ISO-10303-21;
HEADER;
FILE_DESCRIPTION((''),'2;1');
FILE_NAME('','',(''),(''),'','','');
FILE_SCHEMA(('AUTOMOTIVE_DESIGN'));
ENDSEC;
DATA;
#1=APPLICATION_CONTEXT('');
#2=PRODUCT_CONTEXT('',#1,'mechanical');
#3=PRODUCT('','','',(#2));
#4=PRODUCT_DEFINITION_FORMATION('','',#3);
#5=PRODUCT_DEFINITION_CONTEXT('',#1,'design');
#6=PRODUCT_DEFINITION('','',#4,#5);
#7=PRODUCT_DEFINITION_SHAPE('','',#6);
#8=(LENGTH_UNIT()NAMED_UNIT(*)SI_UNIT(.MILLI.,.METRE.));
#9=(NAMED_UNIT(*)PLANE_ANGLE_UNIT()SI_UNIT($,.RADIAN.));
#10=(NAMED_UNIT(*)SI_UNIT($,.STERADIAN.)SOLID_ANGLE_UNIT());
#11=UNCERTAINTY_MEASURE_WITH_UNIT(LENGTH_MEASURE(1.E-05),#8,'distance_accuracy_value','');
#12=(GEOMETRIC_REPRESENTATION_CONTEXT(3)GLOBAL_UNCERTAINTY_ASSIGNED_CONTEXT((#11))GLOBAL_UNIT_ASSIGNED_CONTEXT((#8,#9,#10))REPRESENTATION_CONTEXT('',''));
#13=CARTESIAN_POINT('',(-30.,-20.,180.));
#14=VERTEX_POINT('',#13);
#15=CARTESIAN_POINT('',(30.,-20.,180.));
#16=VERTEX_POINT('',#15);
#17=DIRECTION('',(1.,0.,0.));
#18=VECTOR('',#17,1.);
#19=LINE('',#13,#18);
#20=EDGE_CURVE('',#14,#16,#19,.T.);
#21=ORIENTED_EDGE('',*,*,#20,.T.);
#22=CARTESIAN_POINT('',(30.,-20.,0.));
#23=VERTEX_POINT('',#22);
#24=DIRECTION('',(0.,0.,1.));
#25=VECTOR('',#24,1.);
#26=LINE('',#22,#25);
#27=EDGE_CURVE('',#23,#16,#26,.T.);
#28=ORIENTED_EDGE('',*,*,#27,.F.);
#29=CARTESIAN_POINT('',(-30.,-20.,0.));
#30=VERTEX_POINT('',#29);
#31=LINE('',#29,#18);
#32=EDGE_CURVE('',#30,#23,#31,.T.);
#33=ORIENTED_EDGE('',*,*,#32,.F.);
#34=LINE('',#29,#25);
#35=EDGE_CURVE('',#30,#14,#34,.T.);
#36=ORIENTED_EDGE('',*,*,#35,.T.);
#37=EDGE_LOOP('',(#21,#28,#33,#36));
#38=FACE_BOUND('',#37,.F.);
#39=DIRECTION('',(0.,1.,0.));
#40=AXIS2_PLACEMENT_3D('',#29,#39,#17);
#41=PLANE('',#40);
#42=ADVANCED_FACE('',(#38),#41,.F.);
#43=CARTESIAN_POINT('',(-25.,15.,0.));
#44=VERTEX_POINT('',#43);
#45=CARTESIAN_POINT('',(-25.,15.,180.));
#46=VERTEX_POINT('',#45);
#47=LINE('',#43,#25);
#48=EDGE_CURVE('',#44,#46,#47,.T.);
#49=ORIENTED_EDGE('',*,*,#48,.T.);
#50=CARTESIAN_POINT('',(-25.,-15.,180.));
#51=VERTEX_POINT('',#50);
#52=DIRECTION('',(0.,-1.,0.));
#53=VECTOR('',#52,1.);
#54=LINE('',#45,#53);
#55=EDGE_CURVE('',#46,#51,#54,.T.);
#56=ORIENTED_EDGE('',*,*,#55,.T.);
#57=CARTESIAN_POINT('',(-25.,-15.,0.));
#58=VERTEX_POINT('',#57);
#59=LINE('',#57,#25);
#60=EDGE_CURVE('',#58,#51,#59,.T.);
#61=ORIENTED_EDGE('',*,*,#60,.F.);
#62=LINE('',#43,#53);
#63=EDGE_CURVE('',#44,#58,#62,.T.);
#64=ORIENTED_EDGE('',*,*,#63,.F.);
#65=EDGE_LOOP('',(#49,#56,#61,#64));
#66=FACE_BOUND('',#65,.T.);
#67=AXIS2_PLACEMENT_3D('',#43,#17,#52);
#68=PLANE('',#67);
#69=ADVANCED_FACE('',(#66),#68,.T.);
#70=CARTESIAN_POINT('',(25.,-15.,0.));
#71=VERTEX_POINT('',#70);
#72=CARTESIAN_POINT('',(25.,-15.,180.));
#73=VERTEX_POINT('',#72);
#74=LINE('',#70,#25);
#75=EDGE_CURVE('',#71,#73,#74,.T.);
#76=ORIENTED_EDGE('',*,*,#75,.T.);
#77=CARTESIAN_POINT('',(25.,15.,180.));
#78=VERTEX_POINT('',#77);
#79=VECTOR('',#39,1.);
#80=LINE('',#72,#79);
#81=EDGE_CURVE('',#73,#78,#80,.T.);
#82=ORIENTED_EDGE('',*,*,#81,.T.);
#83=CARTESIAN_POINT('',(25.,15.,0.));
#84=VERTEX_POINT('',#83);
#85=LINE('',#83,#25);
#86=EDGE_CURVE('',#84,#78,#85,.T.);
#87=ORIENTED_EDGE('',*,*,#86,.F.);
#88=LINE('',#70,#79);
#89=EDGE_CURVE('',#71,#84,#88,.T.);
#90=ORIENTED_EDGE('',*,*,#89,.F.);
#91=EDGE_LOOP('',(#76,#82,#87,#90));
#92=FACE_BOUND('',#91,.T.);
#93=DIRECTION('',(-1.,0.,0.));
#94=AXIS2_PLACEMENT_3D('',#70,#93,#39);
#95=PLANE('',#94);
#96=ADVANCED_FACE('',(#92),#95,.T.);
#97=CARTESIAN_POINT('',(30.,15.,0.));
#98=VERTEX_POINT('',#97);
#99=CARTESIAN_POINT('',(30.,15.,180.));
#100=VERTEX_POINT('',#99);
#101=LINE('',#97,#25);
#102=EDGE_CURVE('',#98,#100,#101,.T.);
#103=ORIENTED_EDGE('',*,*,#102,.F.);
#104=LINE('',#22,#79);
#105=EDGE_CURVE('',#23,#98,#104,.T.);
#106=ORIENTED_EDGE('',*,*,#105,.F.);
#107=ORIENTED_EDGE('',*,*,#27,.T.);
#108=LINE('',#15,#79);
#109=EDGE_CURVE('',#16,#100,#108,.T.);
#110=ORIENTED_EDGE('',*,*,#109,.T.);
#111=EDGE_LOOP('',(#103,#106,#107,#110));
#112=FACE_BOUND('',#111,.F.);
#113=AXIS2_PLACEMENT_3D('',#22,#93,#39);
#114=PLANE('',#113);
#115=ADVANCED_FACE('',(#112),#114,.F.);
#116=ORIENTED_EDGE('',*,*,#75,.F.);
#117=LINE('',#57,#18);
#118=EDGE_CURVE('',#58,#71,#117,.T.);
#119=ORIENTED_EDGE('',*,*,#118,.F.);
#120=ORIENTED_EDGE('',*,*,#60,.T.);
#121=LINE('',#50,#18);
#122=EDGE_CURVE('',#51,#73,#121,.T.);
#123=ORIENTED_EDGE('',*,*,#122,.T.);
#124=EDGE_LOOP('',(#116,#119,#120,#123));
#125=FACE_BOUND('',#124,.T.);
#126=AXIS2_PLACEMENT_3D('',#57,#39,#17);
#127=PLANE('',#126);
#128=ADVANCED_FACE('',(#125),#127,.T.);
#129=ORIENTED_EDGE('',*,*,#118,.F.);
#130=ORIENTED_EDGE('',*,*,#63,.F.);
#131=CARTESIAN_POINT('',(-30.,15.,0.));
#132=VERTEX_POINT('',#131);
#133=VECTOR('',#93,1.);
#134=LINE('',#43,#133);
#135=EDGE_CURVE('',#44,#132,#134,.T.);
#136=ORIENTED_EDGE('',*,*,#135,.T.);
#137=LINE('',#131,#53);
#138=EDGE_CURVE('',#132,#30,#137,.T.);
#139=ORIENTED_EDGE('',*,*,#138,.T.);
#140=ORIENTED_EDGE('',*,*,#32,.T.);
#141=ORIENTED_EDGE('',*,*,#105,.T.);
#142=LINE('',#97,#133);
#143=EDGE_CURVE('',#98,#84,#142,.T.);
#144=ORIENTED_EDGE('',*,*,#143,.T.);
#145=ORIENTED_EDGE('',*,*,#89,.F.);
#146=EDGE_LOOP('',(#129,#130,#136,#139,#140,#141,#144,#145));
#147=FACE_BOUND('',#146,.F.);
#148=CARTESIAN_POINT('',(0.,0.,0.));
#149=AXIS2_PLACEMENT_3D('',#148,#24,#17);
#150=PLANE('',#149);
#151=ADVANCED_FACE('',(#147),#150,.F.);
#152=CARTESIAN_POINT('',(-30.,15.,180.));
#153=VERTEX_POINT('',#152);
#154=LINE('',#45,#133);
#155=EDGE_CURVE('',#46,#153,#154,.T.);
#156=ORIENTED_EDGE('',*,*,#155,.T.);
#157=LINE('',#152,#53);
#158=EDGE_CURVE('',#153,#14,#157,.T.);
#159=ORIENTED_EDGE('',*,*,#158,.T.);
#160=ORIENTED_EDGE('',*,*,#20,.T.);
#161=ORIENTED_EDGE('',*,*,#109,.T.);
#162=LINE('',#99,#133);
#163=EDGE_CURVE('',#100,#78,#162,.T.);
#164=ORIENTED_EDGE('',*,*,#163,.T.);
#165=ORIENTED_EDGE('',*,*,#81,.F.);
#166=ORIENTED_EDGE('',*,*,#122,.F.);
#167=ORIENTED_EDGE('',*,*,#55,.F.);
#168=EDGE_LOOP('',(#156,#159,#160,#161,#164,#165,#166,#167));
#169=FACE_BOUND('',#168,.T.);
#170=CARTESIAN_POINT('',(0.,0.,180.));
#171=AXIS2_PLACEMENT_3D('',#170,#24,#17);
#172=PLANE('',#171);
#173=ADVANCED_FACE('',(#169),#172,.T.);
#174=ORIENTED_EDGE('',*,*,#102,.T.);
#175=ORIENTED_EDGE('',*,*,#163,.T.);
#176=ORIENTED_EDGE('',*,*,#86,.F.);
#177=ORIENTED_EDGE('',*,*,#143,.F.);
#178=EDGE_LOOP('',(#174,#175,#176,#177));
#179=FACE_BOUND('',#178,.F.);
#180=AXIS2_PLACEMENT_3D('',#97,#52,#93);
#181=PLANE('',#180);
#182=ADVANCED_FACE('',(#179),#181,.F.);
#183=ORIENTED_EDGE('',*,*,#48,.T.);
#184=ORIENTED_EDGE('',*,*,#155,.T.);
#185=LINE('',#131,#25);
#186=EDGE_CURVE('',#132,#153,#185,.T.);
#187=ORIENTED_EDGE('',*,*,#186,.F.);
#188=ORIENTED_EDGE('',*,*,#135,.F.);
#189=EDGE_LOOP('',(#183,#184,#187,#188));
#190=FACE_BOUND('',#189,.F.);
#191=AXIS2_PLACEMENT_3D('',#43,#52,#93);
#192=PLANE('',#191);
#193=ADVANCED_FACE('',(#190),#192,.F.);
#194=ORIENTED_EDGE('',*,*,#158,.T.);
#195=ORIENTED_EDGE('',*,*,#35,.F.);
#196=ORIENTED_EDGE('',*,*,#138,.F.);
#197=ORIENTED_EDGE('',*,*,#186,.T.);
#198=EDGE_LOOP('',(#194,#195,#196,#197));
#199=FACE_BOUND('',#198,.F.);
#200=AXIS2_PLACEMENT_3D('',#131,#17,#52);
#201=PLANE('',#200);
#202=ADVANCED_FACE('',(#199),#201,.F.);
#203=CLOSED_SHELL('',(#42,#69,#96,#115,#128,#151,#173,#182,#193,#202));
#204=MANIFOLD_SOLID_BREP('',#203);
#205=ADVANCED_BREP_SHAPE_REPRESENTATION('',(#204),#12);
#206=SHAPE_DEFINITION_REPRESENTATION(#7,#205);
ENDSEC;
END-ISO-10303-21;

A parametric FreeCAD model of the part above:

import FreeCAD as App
import Part
import Sketcher

doc = App.newDocument("Part")
params = doc.addObject("Spreadsheet::Sheet", "Params")
for row, (alias, value) in enumerate([
    ("sketch1_width", "50 mm"),
    ("sketch1_width2", "5 mm"),
    ("sketch1_height", "30 mm"),
    ("sketch1_height2", "35 mm"),
    ("pad1_length", "180 mm"),
], start=1):
    params.set(f"A{row}", alias)
    params.set(f"B{row}", "=" + value)
    params.setAlias(f"B{row}", alias)

body = doc.addObject("PartDesign::Body", "Body")

# Sketch on XY plane
sketch1 = doc.addObject("Sketcher::SketchObject", "Sketch")
body.addObject(sketch1)
sketch1.AttachmentSupport = (doc.XY_Plane, [""])
sketch1.MapMode = "FlatFace"
sketch1.addGeometry(Part.LineSegment(App.Vector(25, -15, 0), App.Vector(-25, -15, 0)), False)
sketch1.addGeometry(Part.LineSegment(App.Vector(-25, -15, 0), App.Vector(-25, 15, 0)), False)
sketch1.addGeometry(Part.LineSegment(App.Vector(-25, 15, 0), App.Vector(-30, 15, 0)), False)
sketch1.addGeometry(Part.LineSegment(App.Vector(-30, 15, 0), App.Vector(-30, -20, 0)), False)
sketch1.addGeometry(Part.LineSegment(App.Vector(-30, -20, 0), App.Vector(30, -20, 0)), False)
sketch1.addGeometry(Part.LineSegment(App.Vector(30, -20, 0), App.Vector(30, 15, 0)), False)
sketch1.addGeometry(Part.LineSegment(App.Vector(30, 15, 0), App.Vector(25, 15, 0)), False)
sketch1.addGeometry(Part.LineSegment(App.Vector(25, 15, 0), App.Vector(25, -15, 0)), False)
sketch1.addConstraint(Sketcher.Constraint("Coincident", 0, 2, 1, 1))
sketch1.addConstraint(Sketcher.Constraint("Coincident", 1, 2, 2, 1))
sketch1.addConstraint(Sketcher.Constraint("Coincident", 2, 2, 3, 1))
sketch1.addConstraint(Sketcher.Constraint("Coincident", 3, 2, 4, 1))
sketch1.addConstraint(Sketcher.Constraint("Coincident", 4, 2, 5, 1))
sketch1.addConstraint(Sketcher.Constraint("Coincident", 5, 2, 6, 1))
sketch1.addConstraint(Sketcher.Constraint("Coincident", 6, 2, 7, 1))
sketch1.addConstraint(Sketcher.Constraint("Coincident", 7, 2, 0, 1))
sketch1.addConstraint(Sketcher.Constraint("Horizontal", 0))
sketch1.addConstraint(Sketcher.Constraint("Vertical", 1))
sketch1.addConstraint(Sketcher.Constraint("Horizontal", 2))
sketch1.addConstraint(Sketcher.Constraint("Vertical", 3))
sketch1.addConstraint(Sketcher.Constraint("Horizontal", 4))
sketch1.addConstraint(Sketcher.Constraint("Vertical", 5))
sketch1.addConstraint(Sketcher.Constraint("Horizontal", 6))
sketch1.addConstraint(Sketcher.Constraint("Vertical", 7))
sketch1.addConstraint(Sketcher.Constraint("Symmetric", 0, 2, 6, 2, -1, 1))
sketch1.addConstraint(Sketcher.Constraint("Symmetric", 2, 2, 5, 2, -2))
sketch1.addConstraint(Sketcher.Constraint("DistanceX", 0, 2, 0, 1, 50.0))
sketch1.addConstraint(Sketcher.Constraint("DistanceX", 2, 2, 2, 1, 5.0))
sketch1.addConstraint(Sketcher.Constraint("DistanceY", 1, 1, 1, 2, 30.0))
sketch1.addConstraint(Sketcher.Constraint("DistanceY", 3, 2, 3, 1, 35.0))
sketch1.setExpression("Constraints[18]", "Params.sketch1_width")
sketch1.setExpression("Constraints[19]", "Params.sketch1_width2")
sketch1.setExpression("Constraints[20]", "Params.sketch1_height")
sketch1.setExpression("Constraints[21]", "Params.sketch1_height2")
pad1 = doc.addObject("PartDesign::Pad", "Pad")
body.addObject(pad1)
pad1.Profile = sketch1
pad1.setExpression("Length", "Params.pad1_length")

doc.recompute()
